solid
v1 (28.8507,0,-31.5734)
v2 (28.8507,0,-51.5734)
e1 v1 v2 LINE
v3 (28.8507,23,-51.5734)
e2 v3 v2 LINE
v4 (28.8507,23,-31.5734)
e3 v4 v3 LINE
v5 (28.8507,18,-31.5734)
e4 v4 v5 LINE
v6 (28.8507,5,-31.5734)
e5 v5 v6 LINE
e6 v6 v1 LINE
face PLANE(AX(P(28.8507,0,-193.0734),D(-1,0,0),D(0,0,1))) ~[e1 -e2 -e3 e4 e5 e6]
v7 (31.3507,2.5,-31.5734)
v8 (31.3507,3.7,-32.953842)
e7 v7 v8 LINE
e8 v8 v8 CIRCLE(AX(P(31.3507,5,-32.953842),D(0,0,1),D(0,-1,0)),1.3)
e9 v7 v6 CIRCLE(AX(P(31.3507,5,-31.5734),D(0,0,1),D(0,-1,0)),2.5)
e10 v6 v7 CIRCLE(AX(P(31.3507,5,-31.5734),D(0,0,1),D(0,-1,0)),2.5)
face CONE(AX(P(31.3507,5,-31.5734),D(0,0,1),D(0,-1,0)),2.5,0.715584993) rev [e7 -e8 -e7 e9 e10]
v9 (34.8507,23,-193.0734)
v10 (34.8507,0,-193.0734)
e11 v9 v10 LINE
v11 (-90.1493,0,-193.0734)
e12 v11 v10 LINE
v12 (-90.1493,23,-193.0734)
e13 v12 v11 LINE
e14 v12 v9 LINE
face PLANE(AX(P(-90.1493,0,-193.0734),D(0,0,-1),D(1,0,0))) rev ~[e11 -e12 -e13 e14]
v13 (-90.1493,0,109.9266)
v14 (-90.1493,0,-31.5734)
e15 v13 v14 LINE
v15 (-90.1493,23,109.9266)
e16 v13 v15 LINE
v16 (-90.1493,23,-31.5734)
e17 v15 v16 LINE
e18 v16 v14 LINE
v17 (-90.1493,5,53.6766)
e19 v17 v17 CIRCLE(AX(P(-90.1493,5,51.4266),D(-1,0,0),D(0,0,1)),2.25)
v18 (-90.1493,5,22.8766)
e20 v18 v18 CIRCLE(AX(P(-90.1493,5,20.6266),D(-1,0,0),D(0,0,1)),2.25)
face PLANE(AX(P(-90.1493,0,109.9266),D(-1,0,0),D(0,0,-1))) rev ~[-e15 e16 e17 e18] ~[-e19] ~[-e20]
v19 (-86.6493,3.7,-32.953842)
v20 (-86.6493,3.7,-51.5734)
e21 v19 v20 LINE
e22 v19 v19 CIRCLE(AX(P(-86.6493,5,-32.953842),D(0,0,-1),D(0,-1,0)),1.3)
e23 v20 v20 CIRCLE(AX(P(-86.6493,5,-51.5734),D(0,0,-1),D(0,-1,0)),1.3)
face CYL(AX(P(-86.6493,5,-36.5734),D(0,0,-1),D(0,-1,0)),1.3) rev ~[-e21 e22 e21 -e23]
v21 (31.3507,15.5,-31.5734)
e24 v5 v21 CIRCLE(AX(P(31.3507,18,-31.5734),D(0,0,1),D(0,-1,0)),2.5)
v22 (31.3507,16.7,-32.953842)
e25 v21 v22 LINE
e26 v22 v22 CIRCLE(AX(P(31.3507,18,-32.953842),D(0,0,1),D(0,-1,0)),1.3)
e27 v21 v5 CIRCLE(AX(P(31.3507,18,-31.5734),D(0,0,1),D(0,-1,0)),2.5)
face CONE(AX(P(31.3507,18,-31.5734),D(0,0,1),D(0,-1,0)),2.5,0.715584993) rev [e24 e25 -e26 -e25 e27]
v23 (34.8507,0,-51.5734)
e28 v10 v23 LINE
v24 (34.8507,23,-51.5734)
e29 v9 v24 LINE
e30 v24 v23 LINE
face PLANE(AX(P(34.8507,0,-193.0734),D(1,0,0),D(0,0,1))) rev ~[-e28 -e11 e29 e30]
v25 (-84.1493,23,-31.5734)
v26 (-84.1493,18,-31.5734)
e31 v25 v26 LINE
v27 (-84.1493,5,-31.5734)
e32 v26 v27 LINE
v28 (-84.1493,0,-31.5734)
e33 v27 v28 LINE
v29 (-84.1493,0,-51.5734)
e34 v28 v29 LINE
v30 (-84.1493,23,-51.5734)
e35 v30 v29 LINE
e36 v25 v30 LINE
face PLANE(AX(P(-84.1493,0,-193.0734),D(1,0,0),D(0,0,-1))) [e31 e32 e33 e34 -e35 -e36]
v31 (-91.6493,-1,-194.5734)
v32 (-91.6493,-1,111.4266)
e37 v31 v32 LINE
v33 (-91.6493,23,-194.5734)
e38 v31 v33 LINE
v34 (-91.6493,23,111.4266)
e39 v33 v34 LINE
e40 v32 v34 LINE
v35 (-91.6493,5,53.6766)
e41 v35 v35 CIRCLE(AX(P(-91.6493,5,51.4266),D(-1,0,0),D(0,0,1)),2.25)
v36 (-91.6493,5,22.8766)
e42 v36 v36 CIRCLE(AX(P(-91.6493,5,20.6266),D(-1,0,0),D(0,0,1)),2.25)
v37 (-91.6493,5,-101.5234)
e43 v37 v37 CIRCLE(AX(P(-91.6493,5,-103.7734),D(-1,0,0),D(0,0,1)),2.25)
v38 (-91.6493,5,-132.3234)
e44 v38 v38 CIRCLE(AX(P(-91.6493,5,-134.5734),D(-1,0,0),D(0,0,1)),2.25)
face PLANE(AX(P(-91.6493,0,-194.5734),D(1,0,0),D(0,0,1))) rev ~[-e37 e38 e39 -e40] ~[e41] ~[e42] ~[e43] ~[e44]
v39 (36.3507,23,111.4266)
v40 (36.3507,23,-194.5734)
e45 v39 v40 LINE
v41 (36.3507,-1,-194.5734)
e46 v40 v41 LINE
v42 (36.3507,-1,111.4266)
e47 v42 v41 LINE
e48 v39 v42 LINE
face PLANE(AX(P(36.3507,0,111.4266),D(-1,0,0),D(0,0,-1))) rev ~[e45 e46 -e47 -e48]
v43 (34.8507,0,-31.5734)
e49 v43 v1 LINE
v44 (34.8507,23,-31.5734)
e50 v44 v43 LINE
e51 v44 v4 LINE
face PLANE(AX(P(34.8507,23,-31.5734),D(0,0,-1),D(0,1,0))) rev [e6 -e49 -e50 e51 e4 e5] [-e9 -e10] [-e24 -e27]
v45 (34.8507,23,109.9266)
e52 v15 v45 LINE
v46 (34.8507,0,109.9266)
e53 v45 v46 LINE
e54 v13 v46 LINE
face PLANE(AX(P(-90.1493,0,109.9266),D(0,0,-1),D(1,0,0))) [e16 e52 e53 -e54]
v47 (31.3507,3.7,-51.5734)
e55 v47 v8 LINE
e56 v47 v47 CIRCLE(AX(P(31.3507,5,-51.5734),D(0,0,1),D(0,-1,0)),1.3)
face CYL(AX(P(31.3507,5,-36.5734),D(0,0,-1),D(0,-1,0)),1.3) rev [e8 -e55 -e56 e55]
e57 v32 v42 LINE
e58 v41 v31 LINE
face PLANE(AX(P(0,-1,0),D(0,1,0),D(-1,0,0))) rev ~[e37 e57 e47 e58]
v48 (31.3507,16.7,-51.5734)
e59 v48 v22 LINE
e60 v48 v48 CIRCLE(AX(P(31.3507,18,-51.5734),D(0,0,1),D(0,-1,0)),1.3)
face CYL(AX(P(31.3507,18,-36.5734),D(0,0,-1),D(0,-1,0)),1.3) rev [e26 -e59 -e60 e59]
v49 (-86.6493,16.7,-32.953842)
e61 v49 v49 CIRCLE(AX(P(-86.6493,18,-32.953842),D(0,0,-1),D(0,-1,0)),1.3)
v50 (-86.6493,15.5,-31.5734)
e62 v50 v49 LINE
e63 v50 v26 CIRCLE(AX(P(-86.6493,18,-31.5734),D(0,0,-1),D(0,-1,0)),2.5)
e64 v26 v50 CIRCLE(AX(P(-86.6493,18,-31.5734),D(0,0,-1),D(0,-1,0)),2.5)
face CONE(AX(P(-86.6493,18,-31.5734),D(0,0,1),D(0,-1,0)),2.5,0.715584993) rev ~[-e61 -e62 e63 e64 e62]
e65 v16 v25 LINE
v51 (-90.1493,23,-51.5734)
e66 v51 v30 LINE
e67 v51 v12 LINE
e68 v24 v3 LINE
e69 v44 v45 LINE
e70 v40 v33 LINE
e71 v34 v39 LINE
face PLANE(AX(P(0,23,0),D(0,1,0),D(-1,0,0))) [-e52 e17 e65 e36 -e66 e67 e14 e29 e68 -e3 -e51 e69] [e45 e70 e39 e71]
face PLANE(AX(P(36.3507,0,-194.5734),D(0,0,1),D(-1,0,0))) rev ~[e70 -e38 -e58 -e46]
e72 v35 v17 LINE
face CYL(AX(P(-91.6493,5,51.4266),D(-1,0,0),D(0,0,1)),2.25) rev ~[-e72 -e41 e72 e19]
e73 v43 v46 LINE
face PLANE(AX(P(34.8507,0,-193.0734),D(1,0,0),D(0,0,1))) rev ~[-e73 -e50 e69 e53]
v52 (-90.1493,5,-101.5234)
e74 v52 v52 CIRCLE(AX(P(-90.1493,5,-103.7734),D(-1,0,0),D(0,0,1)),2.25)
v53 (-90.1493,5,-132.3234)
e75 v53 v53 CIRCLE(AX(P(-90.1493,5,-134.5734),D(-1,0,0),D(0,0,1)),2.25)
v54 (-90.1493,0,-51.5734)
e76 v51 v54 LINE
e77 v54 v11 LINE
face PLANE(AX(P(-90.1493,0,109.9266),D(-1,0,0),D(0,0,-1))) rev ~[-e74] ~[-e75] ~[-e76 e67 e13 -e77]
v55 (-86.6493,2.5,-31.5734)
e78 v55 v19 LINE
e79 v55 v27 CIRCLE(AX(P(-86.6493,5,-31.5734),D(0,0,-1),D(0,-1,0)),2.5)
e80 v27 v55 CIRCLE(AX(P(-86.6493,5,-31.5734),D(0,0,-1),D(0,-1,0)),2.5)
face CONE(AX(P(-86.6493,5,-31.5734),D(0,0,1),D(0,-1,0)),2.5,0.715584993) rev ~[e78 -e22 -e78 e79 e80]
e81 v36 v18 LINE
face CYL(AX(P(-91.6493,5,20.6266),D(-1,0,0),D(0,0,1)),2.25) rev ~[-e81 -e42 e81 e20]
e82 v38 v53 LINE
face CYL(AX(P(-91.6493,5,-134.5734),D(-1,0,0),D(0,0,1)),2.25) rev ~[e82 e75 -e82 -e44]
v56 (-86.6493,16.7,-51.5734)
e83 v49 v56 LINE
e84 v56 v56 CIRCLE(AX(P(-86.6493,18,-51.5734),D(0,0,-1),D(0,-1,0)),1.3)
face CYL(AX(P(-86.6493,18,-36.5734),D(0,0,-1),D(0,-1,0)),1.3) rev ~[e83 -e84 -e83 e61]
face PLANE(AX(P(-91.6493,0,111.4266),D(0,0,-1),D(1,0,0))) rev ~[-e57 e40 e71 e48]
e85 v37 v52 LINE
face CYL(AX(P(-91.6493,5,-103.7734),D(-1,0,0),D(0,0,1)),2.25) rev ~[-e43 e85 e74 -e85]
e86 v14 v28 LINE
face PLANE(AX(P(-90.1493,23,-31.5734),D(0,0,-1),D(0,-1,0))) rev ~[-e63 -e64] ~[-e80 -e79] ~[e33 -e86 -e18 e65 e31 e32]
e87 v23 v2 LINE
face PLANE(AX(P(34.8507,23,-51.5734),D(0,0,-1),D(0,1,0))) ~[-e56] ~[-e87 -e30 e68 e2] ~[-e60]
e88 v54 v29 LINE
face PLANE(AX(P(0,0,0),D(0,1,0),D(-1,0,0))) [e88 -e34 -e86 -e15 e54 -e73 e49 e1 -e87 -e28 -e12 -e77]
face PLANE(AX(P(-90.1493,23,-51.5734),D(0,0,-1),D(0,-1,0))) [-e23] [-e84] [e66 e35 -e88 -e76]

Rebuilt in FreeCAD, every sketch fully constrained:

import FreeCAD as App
import Part
import Sketcher
from FreeCAD import Vector
Q = App.Units.Quantity


def add_polygon(sketch, points):
    """Adds a closed chain of lines whose ends are joined by coincident constraints."""
    first, n = sketch.GeometryCount, len(points)
    for a, b in zip(points, points[1:] + points[:1]):
        sketch.addGeometry(Part.LineSegment(App.Vector(*a, 0), App.Vector(*b, 0)), False)
    for i in range(n):
        sketch.addConstraint(Sketcher.Constraint("Coincident", first + i, 2, first + (i + 1) % n, 1))

doc = App.newDocument("Part")
body = doc.addObject("PartDesign::Body", "Body")

sketch1 = body.newObject("Sketcher::SketchObject", "Sketch")
sketch1.AttachmentSupport = (doc.getObject("XZ_Plane"), [""])
sketch1.MapMode = "FlatFace"
add_polygon(sketch1, [(-90, -193), (-90, 110), (35, 110), (35, -193)])
sketch1.addConstraint(Sketcher.Constraint("Vertical", 0))
sketch1.addConstraint(Sketcher.Constraint("Horizontal", 1))
sketch1.addConstraint(Sketcher.Constraint("Vertical", 2))
sketch1.addConstraint(Sketcher.Constraint("Horizontal", 3))
sketch1.addConstraint(Sketcher.Constraint("DistanceX", 1, 1, 1, 2, Q("125 mm")))
sketch1.addConstraint(Sketcher.Constraint("DistanceY", 0, 1, 0, 2, Q("303 mm")))
sketch1.addConstraint(Sketcher.Constraint("DistanceX", 0, 2, -1, 1, Q("90.1493 mm")))
sketch1.addConstraint(Sketcher.Constraint("DistanceY", -1, 1, 0, 2, Q("109.9266 mm")))
pad1 = body.newObject("PartDesign::Pad", "Pad")
pad1.Profile = sketch1
pad1.Length = 1

sketch2 = body.newObject("Sketcher::SketchObject", "Sketch001")
sketch2.AttachmentSupport = (doc.getObject("XZ_Plane"), [""])
sketch2.MapMode = "FlatFace"
add_polygon(sketch2, [(36, -195), (-92, -195), (-92, 111), (36, 111)])
add_polygon(sketch2, [(35, 110), (-90, 110), (-90, -193), (35, -193)])
sketch2.addConstraint(Sketcher.Constraint("Horizontal", 0))
sketch2.addConstraint(Sketcher.Constraint("Vertical", 1))
sketch2.addConstraint(Sketcher.Constraint("Horizontal", 2))
sketch2.addConstraint(Sketcher.Constraint("Vertical", 3))
sketch2.addConstraint(Sketcher.Constraint("Horizontal", 4))
sketch2.addConstraint(Sketcher.Constraint("Vertical", 5))
sketch2.addConstraint(Sketcher.Constraint("Horizontal", 6))
sketch2.addConstraint(Sketcher.Constraint("Vertical", 7))
sketch2.addConstraint(Sketcher.Constraint("DistanceX", 1, 2, 4, 2, Q("1.5 mm")))
sketch2.addConstraint(Sketcher.Constraint("DistanceY", 4, 2, 1, 2, Q("1.5 mm")))
sketch2.addConstraint(Sketcher.Constraint("DistanceY", 0, 2, 5, 2, Q("1.5 mm")))
sketch2.addConstraint(Sketcher.Constraint("DistanceX", 6, 2, 3, 2, Q("1.5 mm")))
sketch2.addConstraint(Sketcher.Constraint("DistanceX", 0, 2, 0, 1, Q("128 mm")))
sketch2.addConstraint(Sketcher.Constraint("DistanceY", 1, 1, 1, 2, Q("306 mm")))
sketch2.addConstraint(Sketcher.Constraint("DistanceX", 0, 2, -1, 1, Q("91.6493 mm")))
sketch2.addConstraint(Sketcher.Constraint("DistanceY", 0, 2, -1, 1, Q("194.5734 mm")))
pad2 = body.newObject("PartDesign::Pad", "Pad001")
pad2.Profile = sketch2
pad2.Type = "TwoLengths"
pad2.Length = 23
pad2.Length2 = 1
pad2.Reversed = True

sketch3 = body.newObject("Sketcher::SketchObject", "Sketch002")
sketch3.AttachmentSupport = (doc.getObject("YZ_Plane"), [""])
sketch3.MapMode = "FlatFace"
sketch3.AttachmentOffset = App.Placement(Vector(0, 0, -91.6493), App.Rotation())
sketch3.addGeometry(Part.Circle(Vector(5, -134.6, 0), Vector(0, 0, 1), 2.2), False)
sketch3.addGeometry(Part.Circle(Vector(5, 20.6, 0), Vector(0, 0, 1), 2.2), False)
sketch3.addGeometry(Part.Circle(Vector(5, -103.8, 0), Vector(0, 0, 1), 2.2), False)
sketch3.addGeometry(Part.Circle(Vector(5, 51.4, 0), Vector(0, 0, 1), 2.2), False)
sketch3.addConstraint(Sketcher.Constraint("Equal", 0, 1))
sketch3.addConstraint(Sketcher.Constraint("Equal", 1, 2))
sketch3.addConstraint(Sketcher.Constraint("Equal", 2, 3))
sketch3.addConstraint(Sketcher.Constraint("Vertical", 0, 3, 1, 3))
sketch3.addConstraint(Sketcher.Constraint("Vertical", 1, 3, 2, 3))
sketch3.addConstraint(Sketcher.Constraint("Vertical", 2, 3, 3, 3))
sketch3.addConstraint(Sketcher.Constraint("Diameter", 0, Q("4.5 mm")))
sketch3.addConstraint(Sketcher.Constraint("DistanceY", 0, 3, 2, 3, Q("30.8 mm")))
sketch3.addConstraint(Sketcher.Constraint("DistanceY", 1, 3, 3, 3, Q("30.8 mm")))
sketch3.addConstraint(Sketcher.Constraint("DistanceX", -1, 1, 0, 3, Q("5 mm")))
sketch3.addConstraint(Sketcher.Constraint("DistanceY", 0, 3, 3, 3, Q("186 mm")))
sketch3.addConstraint(Sketcher.Constraint("DistanceY", 0, 3, -1, 1, Q("134.5734 mm")))
pocket1 = body.newObject("PartDesign::Pocket", "Pocket")
pocket1.Profile = sketch3
pocket1.Length = 1.5
pocket1.Reversed = True

sketch4 = body.newObject("Sketcher::SketchObject", "Sketch003")
sketch4.AttachmentSupport = (doc.getObject("YZ_Plane"), [""])
sketch4.MapMode = "FlatFace"
sketch4.AttachmentOffset = App.Placement(Vector(0, 0, -90.1493), App.Rotation())
add_polygon(sketch4, [(0, -52), (23, -52), (23, -32), (0, -32)])
sketch4.addConstraint(Sketcher.Constraint("Horizontal", 0))
sketch4.addConstraint(Sketcher.Constraint("Vertical", 1))
sketch4.addConstraint(Sketcher.Constraint("Horizontal", 2))
sketch4.addConstraint(Sketcher.Constraint("Vertical", 3))
sketch4.addConstraint(Sketcher.Constraint("PointOnObject", 2, 2, -2))
sketch4.addConstraint(Sketcher.Constraint("DistanceX", 0, 1, 0, 2, Q("23 mm")))
sketch4.addConstraint(Sketcher.Constraint("DistanceY", 1, 1, 1, 2, Q("20 mm")))
sketch4.addConstraint(Sketcher.Constraint("DistanceY", 0, 2, -1, 1, Q("51.5734 mm")))
pad3 = body.newObject("PartDesign::Pad", "Pad002")
pad3.Profile = sketch4
pad3.Length = 6

sketch5 = body.newObject("Sketcher::SketchObject", "Sketch004")
sketch5.AttachmentSupport = (doc.getObject("XY_Plane"), [""])
sketch5.MapMode = "FlatFace"
sketch5.AttachmentOffset = App.Placement(Vector(0, 0, -31.5734), App.Rotation())
sketch5.addGeometry(Part.Circle(Vector(-86.6, 18, 0), Vector(0, 0, 1), 1.3), False)
sketch5.addConstraint(Sketcher.Constraint("Diameter", 0, Q("2.6 mm")))
sketch5.addConstraint(Sketcher.Constraint("DistanceY", -1, 1, 0, 3, Q("18 mm")))
sketch5.addConstraint(Sketcher.Constraint("DistanceX", 0, 3, -1, 1, Q("86.6493 mm")))
doc.recompute()
hole = body.newObject("PartDesign::Hole", "Hole")
hole.Profile = sketch5
hole.ThreadType = "None"
hole.Diameter = 2.6
hole.DepthType = "Dimension"
hole.Depth = 5
hole.DrillPoint = "Flat"
hole.HoleCutType = "Countersink"
hole.HoleCutDiameter = 5
hole.HoleCutCountersinkAngle = 82

sketch6 = body.newObject("Sketcher::SketchObject", "Sketch005")
sketch6.AttachmentSupport = (doc.getObject("XY_Plane"), [""])
sketch6.MapMode = "FlatFace"
sketch6.AttachmentOffset = App.Placement(Vector(0, 0, -36.5734), App.Rotation())
sketch6.addGeometry(Part.Circle(Vector(-86.6, 18, 0), Vector(0, 0, 1), 1.3), False)
sketch6.addConstraint(Sketcher.Constraint("Diameter", 0, Q("2.6 mm")))
sketch6.addConstraint(Sketcher.Constraint("DistanceY", -1, 1, 0, 3, Q("18 mm")))
sketch6.addConstraint(Sketcher.Constraint("DistanceX", 0, 3, -1, 1, Q("86.6493 mm")))
doc.recompute()
hole2 = body.newObject("PartDesign::Hole", "Hole001")
hole2.Profile = sketch6
hole2.ThreadType = "None"
hole2.Diameter = 2.6
hole2.DepthType = "Dimension"
hole2.Depth = 15
hole2.DrillPoint = "Angled"
hole2.DrillPointAngle = 118

sketch7 = body.newObject("Sketcher::SketchObject", "Sketch006")
sketch7.AttachmentSupport = (doc.getObject("XY_Plane"), [""])
sketch7.MapMode = "FlatFace"
sketch7.AttachmentOffset = App.Placement(Vector(0, 0, -31.5734), App.Rotation())
sketch7.addGeometry(Part.Circle(Vector(-86.6, 5, 0), Vector(0, 0, 1), 1.3), False)
sketch7.addConstraint(Sketcher.Constraint("Diameter", 0, Q("2.6 mm")))
sketch7.addConstraint(Sketcher.Constraint("DistanceY", -1, 1, 0, 3, Q("5 mm")))
sketch7.addConstraint(Sketcher.Constraint("DistanceX", 0, 3, -1, 1, Q("86.6493 mm")))
doc.recompute()
hole3 = body.newObject("PartDesign::Hole", "Hole002")
hole3.Profile = sketch7
hole3.ThreadType = "None"
hole3.Diameter = 2.6
hole3.DepthType = "Dimension"
hole3.Depth = 5
hole3.DrillPoint = "Flat"
hole3.HoleCutType = "Countersink"
hole3.HoleCutDiameter = 5
hole3.HoleCutCountersinkAngle = 82

sketch8 = body.newObject("Sketcher::SketchObject", "Sketch007")
sketch8.AttachmentSupport = (doc.getObject("XY_Plane"), [""])
sketch8.MapMode = "FlatFace"
sketch8.AttachmentOffset = App.Placement(Vector(0, 0, -36.5734), App.Rotation())
sketch8.addGeometry(Part.Circle(Vector(-86.6, 5, 0), Vector(0, 0, 1), 1.3), False)
sketch8.addConstraint(Sketcher.Constraint("Diameter", 0, Q("2.6 mm")))
sketch8.addConstraint(Sketcher.Constraint("DistanceY", -1, 1, 0, 3, Q("5 mm")))
sketch8.addConstraint(Sketcher.Constraint("DistanceX", 0, 3, -1, 1, Q("86.6493 mm")))
doc.recompute()
hole4 = body.newObject("PartDesign::Hole", "Hole003")
hole4.Profile = sketch8
hole4.ThreadType = "None"
hole4.Diameter = 2.6
hole4.DepthType = "Dimension"
hole4.Depth = 15
hole4.DrillPoint = "Angled"
hole4.DrillPointAngle = 118
doc.recompute()

datumplane = body.newObject("PartDesign::Plane", "DatumPlane")
datumplane.AttachmentSupport = (doc.getObject("YZ_Plane"), [""])
datumplane.MapMode = "FlatFace"
datumplane.AttachmentOffset = App.Placement(Vector(0, 0, -27.6493), App.Rotation())
mirrored = body.newObject("PartDesign::Mirrored", "Mirrored")
mirrored.Originals = [pad3, hole, hole3, hole2, hole4]
mirrored.MirrorPlane = (datumplane, [""])
body.Tip = mirrored

doc.recompute()
